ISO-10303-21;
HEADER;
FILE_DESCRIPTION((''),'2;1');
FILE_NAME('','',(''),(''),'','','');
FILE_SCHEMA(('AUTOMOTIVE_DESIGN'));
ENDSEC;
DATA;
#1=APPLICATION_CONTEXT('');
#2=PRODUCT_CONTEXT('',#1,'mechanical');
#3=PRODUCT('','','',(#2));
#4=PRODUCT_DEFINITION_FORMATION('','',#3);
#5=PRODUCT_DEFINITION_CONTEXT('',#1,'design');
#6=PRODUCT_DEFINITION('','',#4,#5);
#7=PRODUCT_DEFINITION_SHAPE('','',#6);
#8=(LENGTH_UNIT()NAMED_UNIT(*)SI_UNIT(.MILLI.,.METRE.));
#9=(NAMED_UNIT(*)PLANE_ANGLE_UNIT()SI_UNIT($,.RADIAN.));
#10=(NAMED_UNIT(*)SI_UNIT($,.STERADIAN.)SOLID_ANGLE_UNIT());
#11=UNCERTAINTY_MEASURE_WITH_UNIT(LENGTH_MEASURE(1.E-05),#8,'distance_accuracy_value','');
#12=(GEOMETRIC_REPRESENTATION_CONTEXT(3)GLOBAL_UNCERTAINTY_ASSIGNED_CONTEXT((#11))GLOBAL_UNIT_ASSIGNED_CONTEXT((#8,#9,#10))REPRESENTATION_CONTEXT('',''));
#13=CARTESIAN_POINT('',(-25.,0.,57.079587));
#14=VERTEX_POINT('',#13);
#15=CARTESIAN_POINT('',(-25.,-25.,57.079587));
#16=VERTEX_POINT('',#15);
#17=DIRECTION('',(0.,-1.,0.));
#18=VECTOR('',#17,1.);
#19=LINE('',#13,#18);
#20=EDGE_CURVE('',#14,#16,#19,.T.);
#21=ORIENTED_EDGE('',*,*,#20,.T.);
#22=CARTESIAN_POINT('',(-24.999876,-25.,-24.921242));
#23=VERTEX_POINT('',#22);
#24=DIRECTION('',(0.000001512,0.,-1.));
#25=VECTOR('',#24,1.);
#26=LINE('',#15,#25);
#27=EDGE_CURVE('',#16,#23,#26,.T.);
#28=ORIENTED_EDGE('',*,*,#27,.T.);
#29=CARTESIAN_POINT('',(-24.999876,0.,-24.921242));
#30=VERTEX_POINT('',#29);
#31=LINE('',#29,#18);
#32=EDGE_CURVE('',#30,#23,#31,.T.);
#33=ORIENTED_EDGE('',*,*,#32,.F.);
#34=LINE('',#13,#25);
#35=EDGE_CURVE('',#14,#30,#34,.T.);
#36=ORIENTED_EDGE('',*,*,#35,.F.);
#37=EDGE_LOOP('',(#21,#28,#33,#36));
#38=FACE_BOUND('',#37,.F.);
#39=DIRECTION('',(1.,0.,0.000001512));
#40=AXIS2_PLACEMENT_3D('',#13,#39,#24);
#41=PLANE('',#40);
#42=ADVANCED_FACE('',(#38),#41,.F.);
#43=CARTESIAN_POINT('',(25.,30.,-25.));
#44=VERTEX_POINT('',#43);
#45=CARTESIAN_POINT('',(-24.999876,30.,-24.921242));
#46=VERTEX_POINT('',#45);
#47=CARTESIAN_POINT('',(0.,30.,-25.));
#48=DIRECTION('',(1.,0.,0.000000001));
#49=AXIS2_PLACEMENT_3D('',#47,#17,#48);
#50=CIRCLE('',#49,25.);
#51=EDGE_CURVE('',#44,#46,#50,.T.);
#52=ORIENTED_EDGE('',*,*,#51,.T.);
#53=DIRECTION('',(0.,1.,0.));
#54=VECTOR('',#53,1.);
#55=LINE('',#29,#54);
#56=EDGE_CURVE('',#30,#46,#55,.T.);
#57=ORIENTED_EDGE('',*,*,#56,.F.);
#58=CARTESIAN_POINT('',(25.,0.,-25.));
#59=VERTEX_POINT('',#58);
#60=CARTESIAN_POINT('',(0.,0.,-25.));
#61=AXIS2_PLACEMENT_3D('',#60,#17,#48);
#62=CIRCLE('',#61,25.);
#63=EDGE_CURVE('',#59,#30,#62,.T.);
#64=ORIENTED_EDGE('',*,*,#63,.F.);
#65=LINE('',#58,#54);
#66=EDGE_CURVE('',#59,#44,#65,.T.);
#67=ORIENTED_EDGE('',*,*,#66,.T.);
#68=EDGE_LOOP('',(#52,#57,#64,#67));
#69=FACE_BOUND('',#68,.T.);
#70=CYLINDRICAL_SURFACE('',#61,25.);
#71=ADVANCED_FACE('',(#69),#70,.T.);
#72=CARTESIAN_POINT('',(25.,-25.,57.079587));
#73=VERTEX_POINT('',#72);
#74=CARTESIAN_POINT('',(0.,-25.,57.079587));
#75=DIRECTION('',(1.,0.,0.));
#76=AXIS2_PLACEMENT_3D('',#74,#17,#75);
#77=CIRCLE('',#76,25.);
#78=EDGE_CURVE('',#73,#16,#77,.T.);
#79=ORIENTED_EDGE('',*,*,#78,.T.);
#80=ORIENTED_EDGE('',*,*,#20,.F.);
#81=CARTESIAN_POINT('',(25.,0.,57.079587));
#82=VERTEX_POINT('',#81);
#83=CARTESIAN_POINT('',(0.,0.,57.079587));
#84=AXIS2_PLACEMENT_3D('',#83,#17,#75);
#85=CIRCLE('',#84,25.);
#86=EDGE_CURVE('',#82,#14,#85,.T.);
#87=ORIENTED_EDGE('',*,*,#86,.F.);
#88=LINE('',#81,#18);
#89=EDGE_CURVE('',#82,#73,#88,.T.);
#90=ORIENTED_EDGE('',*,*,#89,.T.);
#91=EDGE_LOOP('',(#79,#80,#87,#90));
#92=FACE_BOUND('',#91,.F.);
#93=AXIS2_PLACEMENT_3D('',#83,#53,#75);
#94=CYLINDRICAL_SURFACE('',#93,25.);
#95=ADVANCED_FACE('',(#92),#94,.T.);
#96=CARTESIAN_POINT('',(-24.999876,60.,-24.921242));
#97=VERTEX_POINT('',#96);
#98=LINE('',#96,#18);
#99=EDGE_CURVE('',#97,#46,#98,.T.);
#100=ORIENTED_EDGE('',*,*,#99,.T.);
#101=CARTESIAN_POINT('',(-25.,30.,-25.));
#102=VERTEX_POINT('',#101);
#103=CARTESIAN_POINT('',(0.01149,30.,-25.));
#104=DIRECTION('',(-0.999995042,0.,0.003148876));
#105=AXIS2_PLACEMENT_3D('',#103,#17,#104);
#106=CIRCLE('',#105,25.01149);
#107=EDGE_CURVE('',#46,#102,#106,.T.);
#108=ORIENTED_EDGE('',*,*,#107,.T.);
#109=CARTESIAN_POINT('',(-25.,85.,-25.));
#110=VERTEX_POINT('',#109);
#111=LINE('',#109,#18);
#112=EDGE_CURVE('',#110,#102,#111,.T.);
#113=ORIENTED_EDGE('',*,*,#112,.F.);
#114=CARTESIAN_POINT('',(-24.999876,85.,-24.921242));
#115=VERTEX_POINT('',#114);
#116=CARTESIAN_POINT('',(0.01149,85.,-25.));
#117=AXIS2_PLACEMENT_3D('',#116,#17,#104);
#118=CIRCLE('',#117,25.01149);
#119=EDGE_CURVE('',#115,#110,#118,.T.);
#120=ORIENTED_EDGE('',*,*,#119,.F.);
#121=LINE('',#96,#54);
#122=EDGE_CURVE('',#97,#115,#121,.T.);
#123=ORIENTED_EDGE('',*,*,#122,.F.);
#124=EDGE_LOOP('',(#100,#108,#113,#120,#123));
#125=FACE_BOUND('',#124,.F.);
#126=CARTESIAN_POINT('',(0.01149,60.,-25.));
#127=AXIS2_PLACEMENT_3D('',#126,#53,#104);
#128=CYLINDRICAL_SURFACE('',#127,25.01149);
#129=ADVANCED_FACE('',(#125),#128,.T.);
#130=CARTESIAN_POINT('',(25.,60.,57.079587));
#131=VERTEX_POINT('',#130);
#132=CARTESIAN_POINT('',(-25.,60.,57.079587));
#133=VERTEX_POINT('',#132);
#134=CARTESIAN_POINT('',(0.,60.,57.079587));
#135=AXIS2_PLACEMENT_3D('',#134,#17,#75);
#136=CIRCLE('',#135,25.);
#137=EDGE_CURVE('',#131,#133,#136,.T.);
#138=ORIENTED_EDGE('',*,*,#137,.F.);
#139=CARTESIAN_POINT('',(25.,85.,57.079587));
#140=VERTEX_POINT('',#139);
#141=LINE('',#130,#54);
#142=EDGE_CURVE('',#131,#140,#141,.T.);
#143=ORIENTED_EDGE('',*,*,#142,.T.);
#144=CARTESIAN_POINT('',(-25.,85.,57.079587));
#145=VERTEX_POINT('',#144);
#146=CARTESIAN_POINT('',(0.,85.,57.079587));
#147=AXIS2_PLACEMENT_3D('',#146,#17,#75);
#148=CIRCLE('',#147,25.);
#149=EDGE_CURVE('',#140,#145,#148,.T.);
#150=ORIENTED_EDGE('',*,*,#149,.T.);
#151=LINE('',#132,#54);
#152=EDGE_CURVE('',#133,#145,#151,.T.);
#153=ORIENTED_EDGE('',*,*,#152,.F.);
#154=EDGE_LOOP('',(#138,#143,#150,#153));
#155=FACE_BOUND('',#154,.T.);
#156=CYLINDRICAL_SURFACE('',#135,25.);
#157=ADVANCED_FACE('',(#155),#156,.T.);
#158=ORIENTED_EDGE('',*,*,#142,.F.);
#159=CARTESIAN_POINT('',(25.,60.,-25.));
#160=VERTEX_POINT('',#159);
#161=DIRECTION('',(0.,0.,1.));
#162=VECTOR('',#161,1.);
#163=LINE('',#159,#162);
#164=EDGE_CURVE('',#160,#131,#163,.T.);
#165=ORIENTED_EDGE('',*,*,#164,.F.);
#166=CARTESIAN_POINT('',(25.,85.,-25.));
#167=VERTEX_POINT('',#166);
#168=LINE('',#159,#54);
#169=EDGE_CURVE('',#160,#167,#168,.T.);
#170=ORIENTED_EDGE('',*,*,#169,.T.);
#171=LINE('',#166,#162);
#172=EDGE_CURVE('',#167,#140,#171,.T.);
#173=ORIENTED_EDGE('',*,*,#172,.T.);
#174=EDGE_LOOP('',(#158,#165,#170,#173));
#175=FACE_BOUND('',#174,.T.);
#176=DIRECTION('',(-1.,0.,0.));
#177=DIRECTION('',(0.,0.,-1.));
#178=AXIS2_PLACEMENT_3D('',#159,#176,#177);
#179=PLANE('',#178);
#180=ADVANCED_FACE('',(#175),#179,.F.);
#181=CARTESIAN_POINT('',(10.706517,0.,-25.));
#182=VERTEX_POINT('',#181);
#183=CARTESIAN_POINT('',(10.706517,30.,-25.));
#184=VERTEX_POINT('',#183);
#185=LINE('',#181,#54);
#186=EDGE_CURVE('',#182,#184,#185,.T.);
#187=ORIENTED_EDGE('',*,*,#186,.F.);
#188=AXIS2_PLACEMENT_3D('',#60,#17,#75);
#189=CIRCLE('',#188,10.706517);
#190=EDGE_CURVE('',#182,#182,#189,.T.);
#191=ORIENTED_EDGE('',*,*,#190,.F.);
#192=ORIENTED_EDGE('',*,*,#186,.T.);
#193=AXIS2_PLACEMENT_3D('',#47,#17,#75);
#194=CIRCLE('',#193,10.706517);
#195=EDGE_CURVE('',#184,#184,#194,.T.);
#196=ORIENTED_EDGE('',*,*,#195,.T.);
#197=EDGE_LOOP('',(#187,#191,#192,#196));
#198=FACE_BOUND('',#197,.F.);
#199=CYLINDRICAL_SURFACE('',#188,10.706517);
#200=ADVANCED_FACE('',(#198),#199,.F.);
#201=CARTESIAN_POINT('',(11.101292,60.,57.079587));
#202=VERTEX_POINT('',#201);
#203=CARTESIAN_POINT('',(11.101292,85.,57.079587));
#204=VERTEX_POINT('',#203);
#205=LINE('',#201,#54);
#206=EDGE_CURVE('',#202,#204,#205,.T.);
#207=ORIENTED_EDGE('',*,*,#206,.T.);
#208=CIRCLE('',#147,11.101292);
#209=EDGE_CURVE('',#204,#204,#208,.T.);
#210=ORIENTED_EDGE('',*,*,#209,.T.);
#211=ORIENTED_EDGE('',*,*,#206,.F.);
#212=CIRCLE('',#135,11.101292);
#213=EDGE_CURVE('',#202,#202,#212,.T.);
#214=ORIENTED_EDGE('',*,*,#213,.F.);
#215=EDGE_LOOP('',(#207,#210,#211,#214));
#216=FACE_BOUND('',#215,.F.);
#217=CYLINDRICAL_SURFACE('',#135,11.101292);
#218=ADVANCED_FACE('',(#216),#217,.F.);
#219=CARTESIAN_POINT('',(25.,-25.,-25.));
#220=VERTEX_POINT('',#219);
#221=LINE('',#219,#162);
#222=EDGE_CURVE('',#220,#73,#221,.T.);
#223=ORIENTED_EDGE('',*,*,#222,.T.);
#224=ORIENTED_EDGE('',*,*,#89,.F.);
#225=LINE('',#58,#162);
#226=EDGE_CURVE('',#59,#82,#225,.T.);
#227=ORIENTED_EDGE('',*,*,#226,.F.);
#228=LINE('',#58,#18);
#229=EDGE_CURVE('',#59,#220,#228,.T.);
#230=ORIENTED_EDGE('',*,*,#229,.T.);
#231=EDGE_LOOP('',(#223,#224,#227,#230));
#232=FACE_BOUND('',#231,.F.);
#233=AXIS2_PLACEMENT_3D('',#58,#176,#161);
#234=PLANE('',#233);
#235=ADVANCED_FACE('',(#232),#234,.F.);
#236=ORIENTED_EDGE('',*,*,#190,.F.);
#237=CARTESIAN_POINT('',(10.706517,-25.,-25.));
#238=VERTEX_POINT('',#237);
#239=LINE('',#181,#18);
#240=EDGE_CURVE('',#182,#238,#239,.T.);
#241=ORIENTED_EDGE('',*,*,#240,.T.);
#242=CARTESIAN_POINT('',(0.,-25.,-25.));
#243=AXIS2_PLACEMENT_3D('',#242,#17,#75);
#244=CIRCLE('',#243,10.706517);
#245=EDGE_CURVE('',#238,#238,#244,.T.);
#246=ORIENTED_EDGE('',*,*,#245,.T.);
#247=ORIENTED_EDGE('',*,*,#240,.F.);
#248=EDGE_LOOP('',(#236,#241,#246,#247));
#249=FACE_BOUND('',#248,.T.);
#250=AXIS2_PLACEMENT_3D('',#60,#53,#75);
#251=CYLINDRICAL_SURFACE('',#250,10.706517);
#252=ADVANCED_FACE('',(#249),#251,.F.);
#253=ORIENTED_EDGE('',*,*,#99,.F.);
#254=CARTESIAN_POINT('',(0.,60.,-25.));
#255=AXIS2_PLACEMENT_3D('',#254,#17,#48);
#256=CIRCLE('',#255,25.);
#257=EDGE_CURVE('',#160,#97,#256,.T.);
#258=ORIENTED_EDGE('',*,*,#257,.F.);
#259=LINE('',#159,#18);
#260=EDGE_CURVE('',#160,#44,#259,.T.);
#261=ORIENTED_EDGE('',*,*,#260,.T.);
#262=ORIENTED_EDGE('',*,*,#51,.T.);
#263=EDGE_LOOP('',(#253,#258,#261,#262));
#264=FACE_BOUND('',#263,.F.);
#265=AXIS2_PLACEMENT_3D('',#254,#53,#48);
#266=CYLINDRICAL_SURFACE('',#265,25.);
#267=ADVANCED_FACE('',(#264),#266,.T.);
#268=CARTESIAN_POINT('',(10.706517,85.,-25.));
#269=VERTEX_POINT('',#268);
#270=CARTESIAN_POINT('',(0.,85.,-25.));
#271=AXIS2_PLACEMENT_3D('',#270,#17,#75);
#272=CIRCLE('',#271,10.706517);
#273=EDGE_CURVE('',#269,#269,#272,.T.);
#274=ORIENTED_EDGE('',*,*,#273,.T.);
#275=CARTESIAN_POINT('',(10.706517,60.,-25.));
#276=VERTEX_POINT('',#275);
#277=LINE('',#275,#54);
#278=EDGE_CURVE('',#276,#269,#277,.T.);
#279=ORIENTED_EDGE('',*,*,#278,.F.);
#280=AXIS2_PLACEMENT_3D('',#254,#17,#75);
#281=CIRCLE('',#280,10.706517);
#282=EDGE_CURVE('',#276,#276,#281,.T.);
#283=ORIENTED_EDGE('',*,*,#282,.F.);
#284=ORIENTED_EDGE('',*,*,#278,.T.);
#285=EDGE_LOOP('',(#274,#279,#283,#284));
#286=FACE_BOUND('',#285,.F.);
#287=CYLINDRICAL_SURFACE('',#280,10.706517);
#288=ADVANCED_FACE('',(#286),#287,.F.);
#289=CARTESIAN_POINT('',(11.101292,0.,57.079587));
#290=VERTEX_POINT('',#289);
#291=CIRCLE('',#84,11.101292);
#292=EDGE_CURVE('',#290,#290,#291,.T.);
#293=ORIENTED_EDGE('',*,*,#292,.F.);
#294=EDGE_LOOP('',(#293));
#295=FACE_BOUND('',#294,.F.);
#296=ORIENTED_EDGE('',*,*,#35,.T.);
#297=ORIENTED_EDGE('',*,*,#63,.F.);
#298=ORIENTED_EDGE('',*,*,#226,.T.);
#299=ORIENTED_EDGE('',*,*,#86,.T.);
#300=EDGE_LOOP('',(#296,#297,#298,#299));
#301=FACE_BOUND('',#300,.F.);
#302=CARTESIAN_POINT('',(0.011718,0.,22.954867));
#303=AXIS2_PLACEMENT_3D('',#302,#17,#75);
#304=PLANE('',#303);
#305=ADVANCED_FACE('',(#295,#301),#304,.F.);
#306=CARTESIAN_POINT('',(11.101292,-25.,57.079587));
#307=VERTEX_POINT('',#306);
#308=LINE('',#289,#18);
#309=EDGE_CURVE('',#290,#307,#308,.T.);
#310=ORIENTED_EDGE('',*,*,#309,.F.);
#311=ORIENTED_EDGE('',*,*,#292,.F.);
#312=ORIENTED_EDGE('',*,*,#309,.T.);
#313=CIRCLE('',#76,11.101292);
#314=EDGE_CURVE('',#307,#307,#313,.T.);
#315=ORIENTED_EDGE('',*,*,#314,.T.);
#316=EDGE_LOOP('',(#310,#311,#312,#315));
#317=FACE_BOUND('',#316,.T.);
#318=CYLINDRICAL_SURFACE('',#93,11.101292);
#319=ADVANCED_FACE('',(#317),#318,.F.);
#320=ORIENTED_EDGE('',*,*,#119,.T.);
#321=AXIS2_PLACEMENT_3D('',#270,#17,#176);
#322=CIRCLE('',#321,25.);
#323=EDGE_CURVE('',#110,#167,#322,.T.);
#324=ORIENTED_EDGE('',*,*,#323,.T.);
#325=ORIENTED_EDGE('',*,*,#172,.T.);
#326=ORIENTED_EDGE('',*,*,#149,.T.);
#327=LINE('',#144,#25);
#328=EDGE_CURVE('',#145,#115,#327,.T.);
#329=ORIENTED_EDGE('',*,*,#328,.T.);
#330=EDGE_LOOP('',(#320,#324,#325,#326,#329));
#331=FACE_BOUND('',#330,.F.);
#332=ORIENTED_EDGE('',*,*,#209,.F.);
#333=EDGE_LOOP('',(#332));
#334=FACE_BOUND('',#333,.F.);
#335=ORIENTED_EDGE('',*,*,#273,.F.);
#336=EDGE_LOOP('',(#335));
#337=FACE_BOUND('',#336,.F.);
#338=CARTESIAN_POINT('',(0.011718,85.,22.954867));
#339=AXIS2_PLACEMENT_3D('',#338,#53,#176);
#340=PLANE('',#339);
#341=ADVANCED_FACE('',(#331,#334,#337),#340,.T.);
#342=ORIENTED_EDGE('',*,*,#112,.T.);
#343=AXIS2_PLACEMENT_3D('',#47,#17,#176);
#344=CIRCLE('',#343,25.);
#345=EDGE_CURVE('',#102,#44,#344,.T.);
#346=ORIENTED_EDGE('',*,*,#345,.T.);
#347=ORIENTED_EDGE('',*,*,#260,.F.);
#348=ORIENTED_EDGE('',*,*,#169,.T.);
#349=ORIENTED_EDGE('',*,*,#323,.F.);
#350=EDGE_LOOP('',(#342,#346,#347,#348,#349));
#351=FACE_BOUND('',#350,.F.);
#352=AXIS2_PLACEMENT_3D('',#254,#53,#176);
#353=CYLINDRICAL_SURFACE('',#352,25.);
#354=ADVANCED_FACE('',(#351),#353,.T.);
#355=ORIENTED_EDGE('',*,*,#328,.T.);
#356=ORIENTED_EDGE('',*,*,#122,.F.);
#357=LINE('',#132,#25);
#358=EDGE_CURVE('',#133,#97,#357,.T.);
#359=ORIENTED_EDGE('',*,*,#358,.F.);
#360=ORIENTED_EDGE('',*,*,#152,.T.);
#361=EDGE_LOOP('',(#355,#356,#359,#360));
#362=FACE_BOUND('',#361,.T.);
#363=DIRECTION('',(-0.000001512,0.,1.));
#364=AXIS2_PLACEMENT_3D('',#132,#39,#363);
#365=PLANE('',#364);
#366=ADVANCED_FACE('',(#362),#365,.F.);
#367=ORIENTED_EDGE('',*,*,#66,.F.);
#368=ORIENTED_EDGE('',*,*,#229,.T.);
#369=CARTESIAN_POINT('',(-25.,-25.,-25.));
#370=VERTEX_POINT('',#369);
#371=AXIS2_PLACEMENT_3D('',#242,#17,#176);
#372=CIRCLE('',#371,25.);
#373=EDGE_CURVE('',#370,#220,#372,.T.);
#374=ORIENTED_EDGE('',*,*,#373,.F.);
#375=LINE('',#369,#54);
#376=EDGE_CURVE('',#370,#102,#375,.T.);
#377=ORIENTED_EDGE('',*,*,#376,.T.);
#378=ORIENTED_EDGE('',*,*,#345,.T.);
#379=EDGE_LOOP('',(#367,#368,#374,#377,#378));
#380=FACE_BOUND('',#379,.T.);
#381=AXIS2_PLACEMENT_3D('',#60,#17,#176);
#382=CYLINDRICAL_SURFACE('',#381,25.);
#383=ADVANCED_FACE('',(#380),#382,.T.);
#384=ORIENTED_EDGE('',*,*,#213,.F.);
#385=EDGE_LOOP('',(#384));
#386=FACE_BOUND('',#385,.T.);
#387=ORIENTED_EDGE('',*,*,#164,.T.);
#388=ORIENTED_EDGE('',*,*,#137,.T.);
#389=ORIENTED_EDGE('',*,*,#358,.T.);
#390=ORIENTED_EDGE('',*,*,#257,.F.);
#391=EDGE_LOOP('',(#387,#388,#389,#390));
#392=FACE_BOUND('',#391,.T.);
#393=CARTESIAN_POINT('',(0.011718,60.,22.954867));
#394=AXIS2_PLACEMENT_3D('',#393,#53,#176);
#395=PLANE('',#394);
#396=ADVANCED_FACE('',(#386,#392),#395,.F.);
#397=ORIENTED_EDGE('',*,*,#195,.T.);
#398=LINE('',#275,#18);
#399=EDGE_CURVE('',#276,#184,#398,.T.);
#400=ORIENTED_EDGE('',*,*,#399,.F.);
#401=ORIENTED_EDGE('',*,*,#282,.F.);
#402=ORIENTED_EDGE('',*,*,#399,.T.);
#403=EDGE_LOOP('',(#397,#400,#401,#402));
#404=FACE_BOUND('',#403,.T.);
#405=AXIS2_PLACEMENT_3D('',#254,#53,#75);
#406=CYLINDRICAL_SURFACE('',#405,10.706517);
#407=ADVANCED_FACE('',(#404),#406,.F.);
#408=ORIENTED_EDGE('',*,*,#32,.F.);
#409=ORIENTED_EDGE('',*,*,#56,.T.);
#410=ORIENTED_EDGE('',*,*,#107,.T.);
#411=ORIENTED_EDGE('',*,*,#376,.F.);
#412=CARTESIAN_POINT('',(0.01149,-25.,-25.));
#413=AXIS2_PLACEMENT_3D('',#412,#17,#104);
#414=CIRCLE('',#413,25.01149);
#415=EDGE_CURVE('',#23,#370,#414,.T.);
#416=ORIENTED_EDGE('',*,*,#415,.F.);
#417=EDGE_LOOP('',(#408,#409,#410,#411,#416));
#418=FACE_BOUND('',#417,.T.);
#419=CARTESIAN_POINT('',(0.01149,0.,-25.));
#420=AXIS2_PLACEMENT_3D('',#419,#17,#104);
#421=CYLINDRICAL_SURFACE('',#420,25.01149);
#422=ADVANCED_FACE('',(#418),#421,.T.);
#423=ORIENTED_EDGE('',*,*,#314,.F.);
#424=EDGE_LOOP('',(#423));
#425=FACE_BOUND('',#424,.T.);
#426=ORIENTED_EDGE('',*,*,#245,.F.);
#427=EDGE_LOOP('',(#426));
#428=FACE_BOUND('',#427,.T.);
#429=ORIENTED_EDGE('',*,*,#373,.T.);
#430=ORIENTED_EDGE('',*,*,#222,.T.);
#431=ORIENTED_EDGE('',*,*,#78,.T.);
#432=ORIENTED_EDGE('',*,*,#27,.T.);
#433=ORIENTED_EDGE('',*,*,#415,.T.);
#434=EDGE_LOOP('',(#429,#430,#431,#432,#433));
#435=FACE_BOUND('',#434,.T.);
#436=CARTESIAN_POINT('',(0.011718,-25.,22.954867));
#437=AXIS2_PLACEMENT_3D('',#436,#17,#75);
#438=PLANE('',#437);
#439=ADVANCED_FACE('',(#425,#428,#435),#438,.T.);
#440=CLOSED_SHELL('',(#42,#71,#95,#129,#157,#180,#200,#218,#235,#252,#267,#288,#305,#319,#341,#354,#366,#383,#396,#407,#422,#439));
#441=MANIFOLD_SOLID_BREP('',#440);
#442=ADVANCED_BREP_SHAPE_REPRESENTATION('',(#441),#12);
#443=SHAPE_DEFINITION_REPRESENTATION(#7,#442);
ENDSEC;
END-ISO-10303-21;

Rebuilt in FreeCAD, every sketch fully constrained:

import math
import FreeCAD as App
import Part
import Sketcher

V = App.Vector

doc = App.newDocument("Part")
body = doc.addObject("PartDesign::Body", "Body")

# Sketch on XZ plane
sketch1 = doc.addObject("Sketcher::SketchObject", "Sketch")
body.addObject(sketch1)
sketch1.AttachmentSupport = (doc.XZ_Plane, [""])
sketch1.MapMode = "FlatFace"
sketch1.addGeometry(Part.LineSegment(V(-25, 57.079587, 0), V(-24.999876, -24.921242, 0)), False)
sketch1.addGeometry(Part.ArcOfCircle(Part.Circle(V(0.01149, -25, 0), V(0, 0, 1), 25.01149), math.radians(179.819582), math.radians(180)), False)
sketch1.addGeometry(Part.ArcOfCircle(Part.Circle(V(0, -25, 0), V(0, 0, 1), 25), math.radians(180), math.radians(360)), False)
sketch1.addGeometry(Part.LineSegment(V(25, -25, 0), V(25, 57.079587, 0)), False)
sketch1.addGeometry(Part.ArcOfCircle(Part.Circle(V(0, 57.079587, 0), V(0, 0, 1), 25), math.radians(0), math.radians(180)), False)
sketch1.addGeometry(Part.Circle(V(0, -25, 0), V(0, 0, 1), 10.706517), False)
sketch1.addGeometry(Part.Circle(V(0, 57.079587, 0), V(0, 0, 1), 11.101292), False)
sketch1.addConstraint(Sketcher.Constraint("Coincident", 0, 2, 1, 1))
sketch1.addConstraint(Sketcher.Constraint("Coincident", 1, 2, 2, 1))
sketch1.addConstraint(Sketcher.Constraint("Coincident", 2, 2, 3, 1))
sketch1.addConstraint(Sketcher.Constraint("Coincident", 3, 2, 4, 1))
sketch1.addConstraint(Sketcher.Constraint("Coincident", 4, 2, 0, 1))
sketch1.addConstraint(Sketcher.Constraint("Vertical", 3))
sketch1.addConstraint(Sketcher.Constraint("Coincident", 5, 3, 2, 3))
sketch1.addConstraint(Sketcher.Constraint("Coincident", 6, 3, 4, 3))
sketch1.addConstraint(Sketcher.Constraint("PointOnObject", 2, 3, -2))
sketch1.addConstraint(Sketcher.Constraint("PointOnObject", 4, 3, -2))
sketch1.addConstraint(Sketcher.Constraint("Radius", 2, 25.0))
sketch1.addConstraint(Sketcher.Constraint("DistanceY", 1, 3, -1, 1, 25.0))
sketch1.addConstraint(Sketcher.Constraint("DistanceY", 2, 3, -1, 1, 25.0))
sketch1.addConstraint(Sketcher.Constraint("DistanceY", 1, 2, -1, 1, 25.0))
sketch1.addConstraint(Sketcher.Constraint("DistanceY", 2, 2, -1, 1, 25.0))
sketch1.addConstraint(Sketcher.Constraint("Radius", 1, 25.01149))
sketch1.addConstraint(Sketcher.Constraint("Diameter", 5, 21.413034))
sketch1.addConstraint(Sketcher.Constraint("Diameter", 6, 22.202584))
sketch1.addConstraint(Sketcher.Constraint("Distance", 0, 82.000829))
sketch1.addConstraint(Sketcher.Constraint("DistanceY", 3, 1, 3, 2, 82.079587))
sketch1.addConstraint(Sketcher.Constraint("DistanceY", 0, 2, -1, 1, 24.921242))
sketch1.addConstraint(Sketcher.Constraint("DistanceY", 0, 2, 4, 3, 82.000829))
pad1 = doc.addObject("PartDesign::Pad", "Pad")
body.addObject(pad1)
pad1.Profile = sketch1
pad1.Length = 25

# Sketch on XZ plane
sketch2 = doc.addObject("Sketcher::SketchObject", "Sketch001")
body.addObject(sketch2)
sketch2.AttachmentSupport = (doc.XZ_Plane, [""])
sketch2.MapMode = "FlatFace"
sketch2.addGeometry(Part.ArcOfCircle(Part.Circle(V(0, -25, 0), V(0, 0, 1), 25), math.radians(0), math.radians(179.8195)), False)
sketch2.addGeometry(Part.ArcOfCircle(Part.Circle(V(0.01149, -25, 0), V(0, 0, 1), 25.01149), math.radians(179.819582), math.radians(180)), False)
sketch2.addGeometry(Part.ArcOfCircle(Part.Circle(V(0, -25, 0), V(0, 0, 1), 25), math.radians(180), math.radians(360)), False)
sketch2.addGeometry(Part.Circle(V(0, -25, 0), V(0, 0, 1), 10.706517), False)
sketch2.addConstraint(Sketcher.Constraint("Coincident", 0, 2, 1, 1))
sketch2.addConstraint(Sketcher.Constraint("Coincident", 1, 2, 2, 1))
sketch2.addConstraint(Sketcher.Constraint("Coincident", 2, 2, 0, 1))
sketch2.addConstraint(Sketcher.Constraint("Coincident", 3, 3, 0, 3))
sketch2.addConstraint(Sketcher.Constraint("PointOnObject", 0, 3, -2))
sketch2.addConstraint(Sketcher.Constraint("Radius", 0, 25.0))
sketch2.addConstraint(Sketcher.Constraint("DistanceY", 0, 3, -1, 1, 25.0))
sketch2.addConstraint(Sketcher.Constraint("DistanceY", 1, 3, -1, 1, 25.0))
sketch2.addConstraint(Sketcher.Constraint("DistanceY", 2, 3, -1, 1, 25.0))
sketch2.addConstraint(Sketcher.Constraint("DistanceY", 1, 2, -1, 1, 25.0))
sketch2.addConstraint(Sketcher.Constraint("DistanceY", 2, 2, -1, 1, 25.0))
sketch2.addConstraint(Sketcher.Constraint("Radius", 1, 25.01149))
sketch2.addConstraint(Sketcher.Constraint("Diameter", 3, 21.413034))
sketch2.addConstraint(Sketcher.Constraint("DistanceY", 0, 3, 0, 2, 0.078758))
pad2 = doc.addObject("PartDesign::Pad", "Pad001")
body.addObject(pad2)
pad2.Profile = sketch2
pad2.Length = 30
pad2.Reversed = True
body2 = doc.addObject("PartDesign::Body", "Body001")
doc.recompute()

body2.BaseFeature = body
doc.recompute()

mirroring = doc.addObject("Part::Mirroring", "Mirroring")
mirroring.Source = body
mirroring.Base = V(0, 30, -25)
mirroring.Normal = V(0, 1, 0)
body3 = doc.addObject("PartDesign::Body", "Body002")
body3.BaseFeature = mirroring
boolean = doc.addObject("PartDesign::Boolean", "Boolean")
body2.addObject(boolean)
boolean.Type = "Fuse"
boolean.addObjects([body3])
doc.recompute()
mirroring.Visibility = False

doc.recompute()
